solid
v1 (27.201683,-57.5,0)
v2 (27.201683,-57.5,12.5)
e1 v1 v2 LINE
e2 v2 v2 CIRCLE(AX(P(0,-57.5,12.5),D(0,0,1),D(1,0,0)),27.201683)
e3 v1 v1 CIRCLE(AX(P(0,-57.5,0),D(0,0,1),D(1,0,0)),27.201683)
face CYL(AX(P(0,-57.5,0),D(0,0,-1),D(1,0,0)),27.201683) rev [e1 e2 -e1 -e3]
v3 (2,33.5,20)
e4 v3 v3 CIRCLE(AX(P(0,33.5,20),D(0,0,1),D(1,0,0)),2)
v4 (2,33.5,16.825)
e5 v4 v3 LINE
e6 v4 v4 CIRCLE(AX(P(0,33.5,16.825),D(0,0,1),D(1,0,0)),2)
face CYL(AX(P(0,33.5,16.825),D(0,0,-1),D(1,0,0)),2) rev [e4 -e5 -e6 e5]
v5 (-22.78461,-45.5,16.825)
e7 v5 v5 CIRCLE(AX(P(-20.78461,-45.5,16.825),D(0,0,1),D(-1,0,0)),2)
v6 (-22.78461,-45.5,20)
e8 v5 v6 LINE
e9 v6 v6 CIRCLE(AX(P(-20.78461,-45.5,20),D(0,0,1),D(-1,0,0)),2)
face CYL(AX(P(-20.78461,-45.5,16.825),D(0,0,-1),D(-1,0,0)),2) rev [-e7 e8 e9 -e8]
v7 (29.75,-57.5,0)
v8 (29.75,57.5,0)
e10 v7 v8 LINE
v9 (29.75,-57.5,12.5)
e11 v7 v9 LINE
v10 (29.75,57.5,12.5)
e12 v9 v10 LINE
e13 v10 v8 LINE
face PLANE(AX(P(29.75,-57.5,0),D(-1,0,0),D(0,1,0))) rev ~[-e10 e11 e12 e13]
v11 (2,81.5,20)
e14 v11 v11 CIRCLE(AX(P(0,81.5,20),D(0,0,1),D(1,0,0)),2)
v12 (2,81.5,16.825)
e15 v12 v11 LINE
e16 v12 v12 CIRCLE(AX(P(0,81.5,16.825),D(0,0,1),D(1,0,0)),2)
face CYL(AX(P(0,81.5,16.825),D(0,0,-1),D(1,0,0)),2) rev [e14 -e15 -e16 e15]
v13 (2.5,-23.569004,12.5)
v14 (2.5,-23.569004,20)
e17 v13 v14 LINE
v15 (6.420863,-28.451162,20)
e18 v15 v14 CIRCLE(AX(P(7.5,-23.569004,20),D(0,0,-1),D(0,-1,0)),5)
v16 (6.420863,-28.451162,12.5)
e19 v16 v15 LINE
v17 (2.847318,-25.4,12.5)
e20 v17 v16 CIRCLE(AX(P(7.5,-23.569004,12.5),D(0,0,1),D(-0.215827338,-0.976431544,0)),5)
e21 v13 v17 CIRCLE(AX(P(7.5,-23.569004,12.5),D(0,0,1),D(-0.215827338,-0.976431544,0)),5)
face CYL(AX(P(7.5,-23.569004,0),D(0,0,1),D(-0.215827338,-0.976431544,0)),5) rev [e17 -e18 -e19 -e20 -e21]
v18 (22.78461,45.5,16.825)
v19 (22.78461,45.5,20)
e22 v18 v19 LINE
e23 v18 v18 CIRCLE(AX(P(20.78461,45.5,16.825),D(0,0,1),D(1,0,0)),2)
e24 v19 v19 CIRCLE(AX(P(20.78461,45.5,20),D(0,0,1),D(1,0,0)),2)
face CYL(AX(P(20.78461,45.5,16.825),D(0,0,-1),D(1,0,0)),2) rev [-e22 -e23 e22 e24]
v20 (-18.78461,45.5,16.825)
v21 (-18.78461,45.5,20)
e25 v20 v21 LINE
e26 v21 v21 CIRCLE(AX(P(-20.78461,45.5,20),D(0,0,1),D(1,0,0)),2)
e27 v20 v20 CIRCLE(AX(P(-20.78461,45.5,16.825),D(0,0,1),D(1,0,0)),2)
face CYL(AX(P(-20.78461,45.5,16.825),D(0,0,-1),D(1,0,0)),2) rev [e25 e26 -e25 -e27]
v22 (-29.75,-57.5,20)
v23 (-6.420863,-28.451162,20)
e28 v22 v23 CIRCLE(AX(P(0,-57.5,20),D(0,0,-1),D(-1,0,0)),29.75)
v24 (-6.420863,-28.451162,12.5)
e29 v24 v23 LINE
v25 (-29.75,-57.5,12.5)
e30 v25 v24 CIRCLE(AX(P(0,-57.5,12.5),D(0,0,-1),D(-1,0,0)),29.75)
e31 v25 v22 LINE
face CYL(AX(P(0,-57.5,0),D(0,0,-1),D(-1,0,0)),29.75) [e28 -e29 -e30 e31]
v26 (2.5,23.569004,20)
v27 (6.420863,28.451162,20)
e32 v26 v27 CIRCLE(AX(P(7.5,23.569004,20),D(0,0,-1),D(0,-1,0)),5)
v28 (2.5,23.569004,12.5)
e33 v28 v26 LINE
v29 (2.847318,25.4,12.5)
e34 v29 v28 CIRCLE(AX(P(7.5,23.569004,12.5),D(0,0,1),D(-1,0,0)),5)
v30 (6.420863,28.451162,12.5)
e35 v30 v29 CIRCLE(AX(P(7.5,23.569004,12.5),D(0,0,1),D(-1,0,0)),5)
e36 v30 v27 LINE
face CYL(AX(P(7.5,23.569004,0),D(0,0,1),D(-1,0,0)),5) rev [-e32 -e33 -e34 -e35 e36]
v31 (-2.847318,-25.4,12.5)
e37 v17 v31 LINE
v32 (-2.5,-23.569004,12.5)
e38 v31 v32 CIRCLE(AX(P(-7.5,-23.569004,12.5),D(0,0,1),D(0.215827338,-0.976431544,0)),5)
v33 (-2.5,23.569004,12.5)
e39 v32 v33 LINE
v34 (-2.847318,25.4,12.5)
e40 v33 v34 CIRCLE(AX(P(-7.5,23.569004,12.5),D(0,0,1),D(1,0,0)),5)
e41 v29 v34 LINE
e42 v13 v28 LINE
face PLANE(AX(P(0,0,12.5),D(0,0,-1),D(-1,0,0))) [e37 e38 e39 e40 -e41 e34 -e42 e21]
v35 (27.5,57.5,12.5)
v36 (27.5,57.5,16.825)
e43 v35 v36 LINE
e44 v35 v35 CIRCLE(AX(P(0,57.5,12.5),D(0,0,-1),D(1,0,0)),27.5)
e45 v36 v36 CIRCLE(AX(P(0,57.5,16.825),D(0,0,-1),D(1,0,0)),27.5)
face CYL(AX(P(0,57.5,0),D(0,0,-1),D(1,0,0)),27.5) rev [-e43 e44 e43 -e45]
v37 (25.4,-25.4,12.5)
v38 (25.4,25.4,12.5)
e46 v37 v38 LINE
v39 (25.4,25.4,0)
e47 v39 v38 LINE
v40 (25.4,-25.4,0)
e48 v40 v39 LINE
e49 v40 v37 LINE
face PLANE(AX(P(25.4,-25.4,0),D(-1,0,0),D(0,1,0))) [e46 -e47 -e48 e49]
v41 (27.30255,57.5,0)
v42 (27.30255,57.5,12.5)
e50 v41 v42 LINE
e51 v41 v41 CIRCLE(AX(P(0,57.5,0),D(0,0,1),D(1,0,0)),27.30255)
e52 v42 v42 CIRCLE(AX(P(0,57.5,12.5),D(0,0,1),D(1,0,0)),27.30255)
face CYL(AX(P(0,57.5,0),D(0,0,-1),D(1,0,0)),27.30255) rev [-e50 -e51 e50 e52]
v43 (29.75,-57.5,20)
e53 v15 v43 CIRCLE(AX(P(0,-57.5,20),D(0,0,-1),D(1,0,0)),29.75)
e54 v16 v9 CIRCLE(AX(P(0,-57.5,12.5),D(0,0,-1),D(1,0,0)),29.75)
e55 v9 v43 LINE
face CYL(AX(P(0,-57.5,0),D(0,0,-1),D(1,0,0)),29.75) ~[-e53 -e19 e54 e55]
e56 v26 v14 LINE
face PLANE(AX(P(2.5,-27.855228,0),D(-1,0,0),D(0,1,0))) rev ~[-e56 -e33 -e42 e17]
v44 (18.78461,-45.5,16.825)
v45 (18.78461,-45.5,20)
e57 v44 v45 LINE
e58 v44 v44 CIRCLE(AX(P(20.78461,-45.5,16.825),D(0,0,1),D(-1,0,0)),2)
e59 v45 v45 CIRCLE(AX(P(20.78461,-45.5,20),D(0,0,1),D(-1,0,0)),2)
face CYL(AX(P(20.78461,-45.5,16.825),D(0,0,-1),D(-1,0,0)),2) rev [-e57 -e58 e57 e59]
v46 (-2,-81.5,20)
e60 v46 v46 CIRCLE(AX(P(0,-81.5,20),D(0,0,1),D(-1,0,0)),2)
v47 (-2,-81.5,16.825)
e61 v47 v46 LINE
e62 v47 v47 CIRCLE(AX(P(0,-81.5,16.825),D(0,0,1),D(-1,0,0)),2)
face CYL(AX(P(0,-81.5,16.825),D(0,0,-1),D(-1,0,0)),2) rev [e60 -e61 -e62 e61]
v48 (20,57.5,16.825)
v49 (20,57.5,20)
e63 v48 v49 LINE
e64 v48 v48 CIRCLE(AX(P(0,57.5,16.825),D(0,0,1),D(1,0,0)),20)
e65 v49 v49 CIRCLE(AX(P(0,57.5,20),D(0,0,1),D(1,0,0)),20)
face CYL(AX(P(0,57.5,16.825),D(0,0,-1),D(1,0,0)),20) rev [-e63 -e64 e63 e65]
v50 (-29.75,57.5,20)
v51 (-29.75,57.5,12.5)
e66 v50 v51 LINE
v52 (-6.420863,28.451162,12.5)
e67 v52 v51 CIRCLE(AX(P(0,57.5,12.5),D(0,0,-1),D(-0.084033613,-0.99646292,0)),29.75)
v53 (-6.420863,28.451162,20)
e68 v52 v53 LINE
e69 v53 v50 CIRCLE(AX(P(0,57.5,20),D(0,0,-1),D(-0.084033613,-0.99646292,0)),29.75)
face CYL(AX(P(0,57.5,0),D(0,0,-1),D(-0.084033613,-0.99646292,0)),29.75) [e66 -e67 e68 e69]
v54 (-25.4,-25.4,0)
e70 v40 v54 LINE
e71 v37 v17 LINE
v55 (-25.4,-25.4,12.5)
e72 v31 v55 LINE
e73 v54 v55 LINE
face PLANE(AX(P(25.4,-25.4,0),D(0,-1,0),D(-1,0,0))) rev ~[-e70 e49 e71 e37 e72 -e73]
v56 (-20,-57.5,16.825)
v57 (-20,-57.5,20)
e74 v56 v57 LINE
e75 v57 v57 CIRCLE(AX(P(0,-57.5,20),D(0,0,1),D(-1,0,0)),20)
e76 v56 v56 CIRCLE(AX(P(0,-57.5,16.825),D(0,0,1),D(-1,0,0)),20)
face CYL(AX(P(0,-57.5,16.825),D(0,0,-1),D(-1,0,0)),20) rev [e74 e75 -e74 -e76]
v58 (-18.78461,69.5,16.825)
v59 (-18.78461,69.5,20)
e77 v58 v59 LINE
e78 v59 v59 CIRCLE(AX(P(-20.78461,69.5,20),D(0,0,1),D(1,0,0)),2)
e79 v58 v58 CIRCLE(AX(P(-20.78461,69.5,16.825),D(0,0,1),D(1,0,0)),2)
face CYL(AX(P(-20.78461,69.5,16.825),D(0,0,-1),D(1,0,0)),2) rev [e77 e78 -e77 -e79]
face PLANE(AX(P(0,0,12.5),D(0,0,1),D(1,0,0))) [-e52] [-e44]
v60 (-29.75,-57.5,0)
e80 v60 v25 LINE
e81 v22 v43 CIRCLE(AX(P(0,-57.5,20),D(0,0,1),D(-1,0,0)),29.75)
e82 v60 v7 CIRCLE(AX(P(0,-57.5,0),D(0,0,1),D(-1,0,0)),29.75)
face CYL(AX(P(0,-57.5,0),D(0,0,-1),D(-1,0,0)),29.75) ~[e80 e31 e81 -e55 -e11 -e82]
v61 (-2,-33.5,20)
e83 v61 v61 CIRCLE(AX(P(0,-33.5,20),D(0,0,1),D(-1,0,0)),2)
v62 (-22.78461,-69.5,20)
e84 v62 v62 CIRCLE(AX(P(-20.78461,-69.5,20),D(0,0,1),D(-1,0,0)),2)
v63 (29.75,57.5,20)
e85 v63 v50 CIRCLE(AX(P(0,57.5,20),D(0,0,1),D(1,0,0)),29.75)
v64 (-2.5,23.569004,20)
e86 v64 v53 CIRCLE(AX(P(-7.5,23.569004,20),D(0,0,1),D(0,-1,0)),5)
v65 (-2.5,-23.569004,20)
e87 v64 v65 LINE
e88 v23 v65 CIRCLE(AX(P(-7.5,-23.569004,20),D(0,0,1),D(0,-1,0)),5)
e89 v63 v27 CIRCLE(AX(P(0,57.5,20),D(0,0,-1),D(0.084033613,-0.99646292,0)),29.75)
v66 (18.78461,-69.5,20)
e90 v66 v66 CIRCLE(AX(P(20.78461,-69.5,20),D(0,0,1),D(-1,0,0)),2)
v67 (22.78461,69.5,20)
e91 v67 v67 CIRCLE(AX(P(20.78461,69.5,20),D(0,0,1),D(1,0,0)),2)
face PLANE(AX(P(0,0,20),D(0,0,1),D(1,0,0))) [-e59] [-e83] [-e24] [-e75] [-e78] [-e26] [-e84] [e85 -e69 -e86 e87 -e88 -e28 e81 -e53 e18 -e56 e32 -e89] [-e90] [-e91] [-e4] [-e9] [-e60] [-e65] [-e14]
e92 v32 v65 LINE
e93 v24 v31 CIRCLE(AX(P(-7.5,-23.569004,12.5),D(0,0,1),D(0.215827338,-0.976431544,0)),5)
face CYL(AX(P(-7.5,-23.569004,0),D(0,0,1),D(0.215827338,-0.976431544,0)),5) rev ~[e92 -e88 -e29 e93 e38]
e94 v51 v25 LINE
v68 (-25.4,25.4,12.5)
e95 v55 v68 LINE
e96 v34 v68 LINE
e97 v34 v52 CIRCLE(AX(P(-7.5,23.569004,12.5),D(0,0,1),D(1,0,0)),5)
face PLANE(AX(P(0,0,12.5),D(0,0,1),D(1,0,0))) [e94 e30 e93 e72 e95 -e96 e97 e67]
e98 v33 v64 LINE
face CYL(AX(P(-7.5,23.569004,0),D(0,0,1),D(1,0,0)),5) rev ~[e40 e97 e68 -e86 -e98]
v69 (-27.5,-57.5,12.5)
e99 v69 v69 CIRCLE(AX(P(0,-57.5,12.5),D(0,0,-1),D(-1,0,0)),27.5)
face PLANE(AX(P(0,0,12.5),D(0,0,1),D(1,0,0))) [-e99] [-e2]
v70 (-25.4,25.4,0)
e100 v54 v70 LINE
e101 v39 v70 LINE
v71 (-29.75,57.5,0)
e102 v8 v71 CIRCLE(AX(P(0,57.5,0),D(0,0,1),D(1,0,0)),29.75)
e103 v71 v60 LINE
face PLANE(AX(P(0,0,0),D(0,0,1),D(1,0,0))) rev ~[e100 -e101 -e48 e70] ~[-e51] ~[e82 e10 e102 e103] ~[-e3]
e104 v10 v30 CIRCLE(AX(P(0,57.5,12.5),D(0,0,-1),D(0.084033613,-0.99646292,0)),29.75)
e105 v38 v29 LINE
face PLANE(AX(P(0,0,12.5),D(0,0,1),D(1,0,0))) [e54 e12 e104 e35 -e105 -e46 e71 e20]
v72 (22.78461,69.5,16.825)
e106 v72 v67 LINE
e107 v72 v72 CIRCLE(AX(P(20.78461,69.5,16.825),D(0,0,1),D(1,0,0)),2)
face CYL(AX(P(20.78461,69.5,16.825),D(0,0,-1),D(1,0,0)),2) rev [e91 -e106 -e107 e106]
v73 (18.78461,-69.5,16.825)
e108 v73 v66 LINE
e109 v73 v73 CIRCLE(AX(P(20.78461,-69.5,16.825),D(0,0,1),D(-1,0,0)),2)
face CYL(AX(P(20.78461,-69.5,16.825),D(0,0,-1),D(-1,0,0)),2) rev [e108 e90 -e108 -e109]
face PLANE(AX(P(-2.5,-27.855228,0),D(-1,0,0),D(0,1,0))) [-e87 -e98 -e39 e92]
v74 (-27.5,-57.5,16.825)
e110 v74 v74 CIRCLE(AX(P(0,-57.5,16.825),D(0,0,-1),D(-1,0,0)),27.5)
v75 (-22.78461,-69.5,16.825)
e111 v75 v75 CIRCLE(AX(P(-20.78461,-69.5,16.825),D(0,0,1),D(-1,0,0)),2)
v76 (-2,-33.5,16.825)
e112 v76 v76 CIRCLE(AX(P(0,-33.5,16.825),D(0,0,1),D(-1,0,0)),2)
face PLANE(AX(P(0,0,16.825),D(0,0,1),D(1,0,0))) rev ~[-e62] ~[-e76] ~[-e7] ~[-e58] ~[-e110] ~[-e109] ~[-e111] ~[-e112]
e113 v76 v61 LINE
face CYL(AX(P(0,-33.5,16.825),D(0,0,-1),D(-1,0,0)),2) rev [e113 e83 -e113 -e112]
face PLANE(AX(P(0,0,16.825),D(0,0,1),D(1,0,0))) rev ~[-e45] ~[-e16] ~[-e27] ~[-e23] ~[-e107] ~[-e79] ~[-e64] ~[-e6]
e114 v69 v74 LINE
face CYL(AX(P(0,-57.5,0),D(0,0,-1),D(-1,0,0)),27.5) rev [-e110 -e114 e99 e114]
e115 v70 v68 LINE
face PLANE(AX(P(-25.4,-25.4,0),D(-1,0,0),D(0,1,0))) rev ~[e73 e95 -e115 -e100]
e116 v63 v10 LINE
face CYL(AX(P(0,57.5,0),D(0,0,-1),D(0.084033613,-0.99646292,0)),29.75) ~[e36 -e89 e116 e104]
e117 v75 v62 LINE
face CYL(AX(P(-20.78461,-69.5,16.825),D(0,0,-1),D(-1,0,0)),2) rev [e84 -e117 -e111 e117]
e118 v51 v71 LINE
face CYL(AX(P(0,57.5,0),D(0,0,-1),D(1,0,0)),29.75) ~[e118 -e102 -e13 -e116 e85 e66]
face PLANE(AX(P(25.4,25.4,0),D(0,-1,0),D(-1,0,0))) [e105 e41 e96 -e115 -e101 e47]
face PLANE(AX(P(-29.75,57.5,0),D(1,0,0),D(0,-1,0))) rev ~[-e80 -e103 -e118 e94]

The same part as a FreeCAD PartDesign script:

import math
import FreeCAD as App
import Part
import Sketcher
Q = App.Units.Quantity


def edges_at(feature, points):
    """Names of the edges that pass closest to the given points."""
    edges = feature.Shape.Edges
    near = lambda p: min(range(len(edges)), key=lambda i: edges[i].distToShape(Part.Vertex(*p))[0])
    return sorted({f"Edge{near(p) + 1}" for p in points})


def add_polygon(sketch, points):
    """Adds a closed chain of lines whose ends are joined by coincident constraints."""
    first, n = sketch.GeometryCount, len(points)
    for a, b in zip(points, points[1:] + points[:1]):
        sketch.addGeometry(Part.LineSegment(App.Vector(*a, 0), App.Vector(*b, 0)), False)
    for i in range(n):
        sketch.addConstraint(Sketcher.Constraint("Coincident", first + i, 2, first + (i + 1) % n, 1))

doc = App.newDocument("Part")
body = doc.addObject("PartDesign::Body", "Body")

sketch1 = body.newObject("Sketcher::SketchObject", "Sketch")
sketch1.AttachmentSupport = (doc.getObject("XY_Plane"), [""])
sketch1.MapMode = "FlatFace"
sketch1.addGeometry([
    Part.LineSegment(App.Vector(-30, 58, 0), App.Vector(-30, -58, 0)),
    Part.ArcOfCircle(Part.Circle(App.Vector(0, -58, 0), App.Vector(0, 0, 1), 30), math.radians(180), math.radians(360)),
    Part.LineSegment(App.Vector(30, -58, 0), App.Vector(30, 58, 0)),
    Part.ArcOfCircle(Part.Circle(App.Vector(0, 58, 0), App.Vector(0, 0, 1), 30), math.radians(0), math.radians(180)),
    Part.Circle(App.Vector(0, -58, 0), App.Vector(0, 0, 1), 28),
    Part.Circle(App.Vector(0, 58, 0), App.Vector(0, 0, 1), 28),
], False)
sketch1.addConstraint([
    Sketcher.Constraint("Tangent", 0, 2, 1, 1),
    Sketcher.Constraint("Tangent", 1, 2, 2, 1),
    Sketcher.Constraint("Tangent", 2, 2, 3, 1),
    Sketcher.Constraint("Tangent", 3, 2, 0, 1),
    Sketcher.Constraint("Vertical", 0),
    Sketcher.Constraint("Vertical", 2),
    Sketcher.Constraint("Coincident", 4, 3, 1, 3),
    Sketcher.Constraint("Coincident", 5, 3, 3, 3),
    Sketcher.Constraint("Equal", 4, 5),
    Sketcher.Constraint("Symmetric", 1, 3, 3, 3, -1, 1),
    Sketcher.Constraint("Diameter", 4, Q("55 mm")),
    Sketcher.Constraint("DistanceY", 0, 2, 0, 1, Q("115 mm")),
    Sketcher.Constraint("Radius", 1, Q("29.75 mm")),
])
pad1 = body.newObject("PartDesign::Pad", "Pad")
pad1.Profile = sketch1
pad1.Length = 20

sketch2 = body.newObject("Sketcher::SketchObject", "Sketch001")
sketch2.AttachmentSupport = (doc.getObject("XY_Plane"), [""])
sketch2.MapMode = "FlatFace"
sketch2.AttachmentOffset = App.Placement(App.Vector(0, 0, 16.825), App.Rotation())
sketch2.addGeometry([
    Part.LineSegment(App.Vector(-29.8, 57.5, 0), App.Vector(-29.8, -57.5, 0)),
    Part.ArcOfCircle(Part.Circle(App.Vector(0, -57.5, 0), App.Vector(0, 0, 1), 29.8), math.radians(180), math.radians(360)),
    Part.LineSegment(App.Vector(29.8, -57.5, 0), App.Vector(29.8, 57.5, 0)),
    Part.ArcOfCircle(Part.Circle(App.Vector(0, 57.5, 0), App.Vector(0, 0, 1), 29.8), math.radians(0), math.radians(180)),
    Part.Circle(App.Vector(-20.8, -69.5, 0), App.Vector(0, 0, 1), 2),
    Part.Circle(App.Vector(-20.8, -45.5, 0), App.Vector(0, 0, 1), 2),
    Part.Circle(App.Vector(0, -81.5, 0), App.Vector(0, 0, 1), 2),
    Part.Circle(App.Vector(0, -57.5, 0), App.Vector(0, 0, 1), 20),
    Part.Circle(App.Vector(20.8, -69.5, 0), App.Vector(0, 0, 1), 2),
    Part.Circle(App.Vector(20.8, -45.5, 0), App.Vector(0, 0, 1), 2),
    Part.Circle(App.Vector(0, -33.5, 0), App.Vector(0, 0, 1), 2),
    Part.Circle(App.Vector(-20.8, 45.5, 0), App.Vector(0, 0, 1), 2),
    Part.Circle(App.Vector(-20.8, 69.5, 0), App.Vector(0, 0, 1), 2),
    Part.Circle(App.Vector(0, 33.5, 0), App.Vector(0, 0, 1), 2),
    Part.Circle(App.Vector(0, 57.5, 0), App.Vector(0, 0, 1), 20),
    Part.Circle(App.Vector(0, 81.5, 0), App.Vector(0, 0, 1), 2),
    Part.Circle(App.Vector(20.8, 45.5, 0), App.Vector(0, 0, 1), 2),
    Part.Circle(App.Vector(20.8, 69.5, 0), App.Vector(0, 0, 1), 2),
], False)
sketch2.addConstraint([
    Sketcher.Constraint("Tangent", 0, 2, 1, 1),
    Sketcher.Constraint("Tangent", 1, 2, 2, 1),
    Sketcher.Constraint("Tangent", 2, 2, 3, 1),
    Sketcher.Constraint("Tangent", 3, 2, 0, 1),
    Sketcher.Constraint("Vertical", 0),
    Sketcher.Constraint("Vertical", 2),
    Sketcher.Constraint("Coincident", 7, 3, 1, 3),
    Sketcher.Constraint("Coincident", 14, 3, 3, 3),
    Sketcher.Constraint("Equal", 4, 5),
    Sketcher.Constraint("Equal", 5, 6),
    Sketcher.Constraint("Equal", 6, 8),
    Sketcher.Constraint("Equal", 8, 9),
    Sketcher.Constraint("Equal", 9, 10),
    Sketcher.Constraint("Equal", 10, 11),
    Sketcher.Constraint("Equal", 11, 12),
    Sketcher.Constraint("Equal", 12, 13),
    Sketcher.Constraint("Equal", 7, 14),
    Sketcher.Constraint("Equal", 13, 15),
    Sketcher.Constraint("Equal", 15, 16),
    Sketcher.Constraint("Equal", 16, 17),
    Sketcher.Constraint("Symmetric", 1, 3, 3, 3, -1, 1),
    Sketcher.Constraint("Symmetric", 9, 3, 11, 3, -1, 1),
    Sketcher.Constraint("Symmetric", 8, 3, 12, 3, -1, 1),
    Sketcher.Constraint("Symmetric", 10, 3, 13, 3, -1, 1),
    Sketcher.Constraint("Symmetric", 6, 3, 15, 3, -1, 1),
    Sketcher.Constraint("Symmetric", 5, 3, 16, 3, -1, 1),
    Sketcher.Constraint("Symmetric", 4, 3, 17, 3, -1, 1),
    Sketcher.Constraint("Symmetric", 4, 3, 8, 3, -2),
    Sketcher.Constraint("Symmetric", 5, 3, 9, 3, -2),
    Sketcher.Constraint("PointOnObject", 6, 3, -2),
    Sketcher.Constraint("PointOnObject", 10, 3, -2),
    Sketcher.Constraint("Vertical", 4, 3, 5, 3),
    Sketcher.Constraint("Diameter", 4, Q("4 mm")),
    Sketcher.Constraint("Diameter", 7, Q("40 mm")),
    Sketcher.Constraint("DistanceY", 0, 2, 0, 1, Q("115 mm")),
    Sketcher.Constraint("Radius", 1, Q("29.75 mm")),
    Sketcher.Constraint("DistanceY", 4, 3, 1, 3, Q("12 mm")),
    Sketcher.Constraint("DistanceY", 4, 3, 5, 3, Q("24 mm")),
    Sketcher.Constraint("DistanceY", 6, 3, 1, 3, Q("24 mm")),
    Sketcher.Constraint("DistanceY", 1, 3, 10, 3, Q("24 mm")),
    Sketcher.Constraint("DistanceX", 4, 3, -1, 1, Q("20.78461 mm")),
])
pad2 = body.newObject("PartDesign::Pad", "Pad001")
pad2.Profile = sketch2
pad2.Length = 3.175

sketch3 = body.newObject("Sketcher::SketchObject", "Sketch002")
sketch3.AttachmentSupport = (doc.getObject("XY_Plane"), [""])
sketch3.MapMode = "FlatFace"
sketch3.addGeometry([
    Part.LineSegment(App.Vector(2, -28, 0), App.Vector(2, 28, 0)),
    Part.ArcOfCircle(Part.Circle(App.Vector(0, 58, 0), App.Vector(0, 0, 1), 30), math.radians(-85), math.radians(0)),
    Part.LineSegment(App.Vector(30, 58, 0), App.Vector(30, -58, 0)),
    Part.ArcOfCircle(Part.Circle(App.Vector(0, -58, 0), App.Vector(0, 0, 1), 30), math.radians(0), math.radians(85)),
    Part.LineSegment(App.Vector(-2, 28, 0), App.Vector(-2, -28, 0)),
    Part.ArcOfCircle(Part.Circle(App.Vector(0, -58, 0), App.Vector(0, 0, 1), 30), math.radians(95), math.radians(180)),
    Part.LineSegment(App.Vector(-30, -58, 0), App.Vector(-30, 58, 0)),
    Part.ArcOfCircle(Part.Circle(App.Vector(0, 58, 0), App.Vector(0, 0, 1), 30), math.radians(-180), math.radians(-95)),
], False)
sketch3.addConstraint([
    Sketcher.Constraint("Coincident", 0, 2, 1, 1),
    Sketcher.Constraint("Tangent", 1, 2, 2, 1),
    Sketcher.Constraint("Tangent", 2, 2, 3, 1),
    Sketcher.Constraint("Coincident", 3, 2, 0, 1),
    Sketcher.Constraint("Coincident", 4, 2, 5, 1),
    Sketcher.Constraint("Tangent", 5, 2, 6, 1),
    Sketcher.Constraint("Tangent", 6, 2, 7, 1),
    Sketcher.Constraint("Coincident", 7, 2, 4, 1),
    Sketcher.Constraint("Vertical", 0),
    Sketcher.Constraint("Vertical", 2),
    Sketcher.Constraint("Vertical", 4),
    Sketcher.Constraint("Vertical", 6),
    Sketcher.Constraint("Coincident", 5, 3, 3, 3),
    Sketcher.Constraint("Coincident", 7, 3, 1, 3),
    Sketcher.Constraint("Equal", 1, 3),
    Sketcher.Constraint("Equal", 3, 5),
    Sketcher.Constraint("Symmetric", 1, 3, 3, 3, -1, 1),
    Sketcher.Constraint("Horizontal", 3, 2, 4, 2),
    Sketcher.Constraint("DistanceY", 2, 2, 2, 1, Q("115 mm")),
    Sketcher.Constraint("Radius", 1, Q("29.75 mm")),
    Sketcher.Constraint("DistanceX", 4, 2, 3, 2, Q("5 mm")),
])
pocket1 = body.newObject("PartDesign::Pocket", "Pocket")
pocket1.Profile = sketch3
pocket1.Length = 44
pocket1.Reversed = True
doc.recompute()

fillet = body.newObject("PartDesign::Fillet", "Fillet")
fillet.Base = (pocket1, edges_at(pocket1, [
    (2.5, -27.855, 10),
    (2.5, 27.855, 10),
    (-2.5, 27.855, 10),
    (-2.5, -27.855, 10),
]))
fillet.Radius = 5

sketch4 = body.newObject("Sketcher::SketchObject", "Sketch003")
sketch4.AttachmentSupport = (doc.getObject("XY_Plane"), [""])
sketch4.MapMode = "FlatFace"
sketch4.addGeometry([
    Part.LineSegment(App.Vector(-30, 58, 0), App.Vector(-30, -58, 0)),
    Part.ArcOfCircle(Part.Circle(App.Vector(0, -58, 0), App.Vector(0, 0, 1), 30), math.radians(180), math.radians(360)),
    Part.LineSegment(App.Vector(30, -58, 0), App.Vector(30, 58, 0)),
    Part.ArcOfCircle(Part.Circle(App.Vector(0, 58, 0), App.Vector(0, 0, 1), 30), math.radians(0), math.radians(180)),
    Part.Circle(App.Vector(0, -58, 0), App.Vector(0, 0, 1), 27),
    Part.Circle(App.Vector(0, 58, 0), App.Vector(0, 0, 1), 27),
], False)
sketch4.addConstraint([
    Sketcher.Constraint("Tangent", 0, 2, 1, 1),
    Sketcher.Constraint("Tangent", 1, 2, 2, 1),
    Sketcher.Constraint("Tangent", 2, 2, 3, 1),
    Sketcher.Constraint("Tangent", 3, 2, 0, 1),
    Sketcher.Constraint("Vertical", 0),
    Sketcher.Constraint("Vertical", 2),
    Sketcher.Constraint("Coincident", 4, 3, 1, 3),
    Sketcher.Constraint("Coincident", 5, 3, 3, 3),
    Sketcher.Constraint("Symmetric", 1, 3, 3, 3, -1, 1),
    Sketcher.Constraint("DistanceY", 0, 2, 0, 1, Q("115 mm")),
    Sketcher.Constraint("Radius", 1, Q("29.75 mm")),
    Sketcher.Constraint("Diameter", 5, Q("54.6051 mm")),
    Sketcher.Constraint("Diameter", 4, Q("54.403366 mm")),
])
pad3 = body.newObject("PartDesign::Pad", "Pad002")
pad3.Profile = sketch4
pad3.Length = 12.5

sketch5 = body.newObject("Sketcher::SketchObject", "Sketch004")
sketch5.AttachmentSupport = (doc.getObject("XY_Plane"), [""])
sketch5.MapMode = "FlatFace"
add_polygon(sketch5, [(25, 25), (25, -25), (-25, -25), (-25, 25)])
sketch5.addConstraint([
    Sketcher.Constraint("Vertical", 0),
    Sketcher.Constraint("Horizontal", 1),
    Sketcher.Constraint("Vertical", 2),
    Sketcher.Constraint("Horizontal", 3),
    Sketcher.Constraint("Symmetric", 0, 2, 2, 2, -1, 1),
    Sketcher.Constraint("Equal", 3, 0),
    Sketcher.Constraint("DistanceX", 1, 2, 1, 1, Q("50.8 mm")),
])
pocket2 = body.newObject("PartDesign::Pocket", "Pocket001")
pocket2.Profile = sketch5
pocket2.Length = 12.5
pocket2.Reversed = True

doc.recompute()
